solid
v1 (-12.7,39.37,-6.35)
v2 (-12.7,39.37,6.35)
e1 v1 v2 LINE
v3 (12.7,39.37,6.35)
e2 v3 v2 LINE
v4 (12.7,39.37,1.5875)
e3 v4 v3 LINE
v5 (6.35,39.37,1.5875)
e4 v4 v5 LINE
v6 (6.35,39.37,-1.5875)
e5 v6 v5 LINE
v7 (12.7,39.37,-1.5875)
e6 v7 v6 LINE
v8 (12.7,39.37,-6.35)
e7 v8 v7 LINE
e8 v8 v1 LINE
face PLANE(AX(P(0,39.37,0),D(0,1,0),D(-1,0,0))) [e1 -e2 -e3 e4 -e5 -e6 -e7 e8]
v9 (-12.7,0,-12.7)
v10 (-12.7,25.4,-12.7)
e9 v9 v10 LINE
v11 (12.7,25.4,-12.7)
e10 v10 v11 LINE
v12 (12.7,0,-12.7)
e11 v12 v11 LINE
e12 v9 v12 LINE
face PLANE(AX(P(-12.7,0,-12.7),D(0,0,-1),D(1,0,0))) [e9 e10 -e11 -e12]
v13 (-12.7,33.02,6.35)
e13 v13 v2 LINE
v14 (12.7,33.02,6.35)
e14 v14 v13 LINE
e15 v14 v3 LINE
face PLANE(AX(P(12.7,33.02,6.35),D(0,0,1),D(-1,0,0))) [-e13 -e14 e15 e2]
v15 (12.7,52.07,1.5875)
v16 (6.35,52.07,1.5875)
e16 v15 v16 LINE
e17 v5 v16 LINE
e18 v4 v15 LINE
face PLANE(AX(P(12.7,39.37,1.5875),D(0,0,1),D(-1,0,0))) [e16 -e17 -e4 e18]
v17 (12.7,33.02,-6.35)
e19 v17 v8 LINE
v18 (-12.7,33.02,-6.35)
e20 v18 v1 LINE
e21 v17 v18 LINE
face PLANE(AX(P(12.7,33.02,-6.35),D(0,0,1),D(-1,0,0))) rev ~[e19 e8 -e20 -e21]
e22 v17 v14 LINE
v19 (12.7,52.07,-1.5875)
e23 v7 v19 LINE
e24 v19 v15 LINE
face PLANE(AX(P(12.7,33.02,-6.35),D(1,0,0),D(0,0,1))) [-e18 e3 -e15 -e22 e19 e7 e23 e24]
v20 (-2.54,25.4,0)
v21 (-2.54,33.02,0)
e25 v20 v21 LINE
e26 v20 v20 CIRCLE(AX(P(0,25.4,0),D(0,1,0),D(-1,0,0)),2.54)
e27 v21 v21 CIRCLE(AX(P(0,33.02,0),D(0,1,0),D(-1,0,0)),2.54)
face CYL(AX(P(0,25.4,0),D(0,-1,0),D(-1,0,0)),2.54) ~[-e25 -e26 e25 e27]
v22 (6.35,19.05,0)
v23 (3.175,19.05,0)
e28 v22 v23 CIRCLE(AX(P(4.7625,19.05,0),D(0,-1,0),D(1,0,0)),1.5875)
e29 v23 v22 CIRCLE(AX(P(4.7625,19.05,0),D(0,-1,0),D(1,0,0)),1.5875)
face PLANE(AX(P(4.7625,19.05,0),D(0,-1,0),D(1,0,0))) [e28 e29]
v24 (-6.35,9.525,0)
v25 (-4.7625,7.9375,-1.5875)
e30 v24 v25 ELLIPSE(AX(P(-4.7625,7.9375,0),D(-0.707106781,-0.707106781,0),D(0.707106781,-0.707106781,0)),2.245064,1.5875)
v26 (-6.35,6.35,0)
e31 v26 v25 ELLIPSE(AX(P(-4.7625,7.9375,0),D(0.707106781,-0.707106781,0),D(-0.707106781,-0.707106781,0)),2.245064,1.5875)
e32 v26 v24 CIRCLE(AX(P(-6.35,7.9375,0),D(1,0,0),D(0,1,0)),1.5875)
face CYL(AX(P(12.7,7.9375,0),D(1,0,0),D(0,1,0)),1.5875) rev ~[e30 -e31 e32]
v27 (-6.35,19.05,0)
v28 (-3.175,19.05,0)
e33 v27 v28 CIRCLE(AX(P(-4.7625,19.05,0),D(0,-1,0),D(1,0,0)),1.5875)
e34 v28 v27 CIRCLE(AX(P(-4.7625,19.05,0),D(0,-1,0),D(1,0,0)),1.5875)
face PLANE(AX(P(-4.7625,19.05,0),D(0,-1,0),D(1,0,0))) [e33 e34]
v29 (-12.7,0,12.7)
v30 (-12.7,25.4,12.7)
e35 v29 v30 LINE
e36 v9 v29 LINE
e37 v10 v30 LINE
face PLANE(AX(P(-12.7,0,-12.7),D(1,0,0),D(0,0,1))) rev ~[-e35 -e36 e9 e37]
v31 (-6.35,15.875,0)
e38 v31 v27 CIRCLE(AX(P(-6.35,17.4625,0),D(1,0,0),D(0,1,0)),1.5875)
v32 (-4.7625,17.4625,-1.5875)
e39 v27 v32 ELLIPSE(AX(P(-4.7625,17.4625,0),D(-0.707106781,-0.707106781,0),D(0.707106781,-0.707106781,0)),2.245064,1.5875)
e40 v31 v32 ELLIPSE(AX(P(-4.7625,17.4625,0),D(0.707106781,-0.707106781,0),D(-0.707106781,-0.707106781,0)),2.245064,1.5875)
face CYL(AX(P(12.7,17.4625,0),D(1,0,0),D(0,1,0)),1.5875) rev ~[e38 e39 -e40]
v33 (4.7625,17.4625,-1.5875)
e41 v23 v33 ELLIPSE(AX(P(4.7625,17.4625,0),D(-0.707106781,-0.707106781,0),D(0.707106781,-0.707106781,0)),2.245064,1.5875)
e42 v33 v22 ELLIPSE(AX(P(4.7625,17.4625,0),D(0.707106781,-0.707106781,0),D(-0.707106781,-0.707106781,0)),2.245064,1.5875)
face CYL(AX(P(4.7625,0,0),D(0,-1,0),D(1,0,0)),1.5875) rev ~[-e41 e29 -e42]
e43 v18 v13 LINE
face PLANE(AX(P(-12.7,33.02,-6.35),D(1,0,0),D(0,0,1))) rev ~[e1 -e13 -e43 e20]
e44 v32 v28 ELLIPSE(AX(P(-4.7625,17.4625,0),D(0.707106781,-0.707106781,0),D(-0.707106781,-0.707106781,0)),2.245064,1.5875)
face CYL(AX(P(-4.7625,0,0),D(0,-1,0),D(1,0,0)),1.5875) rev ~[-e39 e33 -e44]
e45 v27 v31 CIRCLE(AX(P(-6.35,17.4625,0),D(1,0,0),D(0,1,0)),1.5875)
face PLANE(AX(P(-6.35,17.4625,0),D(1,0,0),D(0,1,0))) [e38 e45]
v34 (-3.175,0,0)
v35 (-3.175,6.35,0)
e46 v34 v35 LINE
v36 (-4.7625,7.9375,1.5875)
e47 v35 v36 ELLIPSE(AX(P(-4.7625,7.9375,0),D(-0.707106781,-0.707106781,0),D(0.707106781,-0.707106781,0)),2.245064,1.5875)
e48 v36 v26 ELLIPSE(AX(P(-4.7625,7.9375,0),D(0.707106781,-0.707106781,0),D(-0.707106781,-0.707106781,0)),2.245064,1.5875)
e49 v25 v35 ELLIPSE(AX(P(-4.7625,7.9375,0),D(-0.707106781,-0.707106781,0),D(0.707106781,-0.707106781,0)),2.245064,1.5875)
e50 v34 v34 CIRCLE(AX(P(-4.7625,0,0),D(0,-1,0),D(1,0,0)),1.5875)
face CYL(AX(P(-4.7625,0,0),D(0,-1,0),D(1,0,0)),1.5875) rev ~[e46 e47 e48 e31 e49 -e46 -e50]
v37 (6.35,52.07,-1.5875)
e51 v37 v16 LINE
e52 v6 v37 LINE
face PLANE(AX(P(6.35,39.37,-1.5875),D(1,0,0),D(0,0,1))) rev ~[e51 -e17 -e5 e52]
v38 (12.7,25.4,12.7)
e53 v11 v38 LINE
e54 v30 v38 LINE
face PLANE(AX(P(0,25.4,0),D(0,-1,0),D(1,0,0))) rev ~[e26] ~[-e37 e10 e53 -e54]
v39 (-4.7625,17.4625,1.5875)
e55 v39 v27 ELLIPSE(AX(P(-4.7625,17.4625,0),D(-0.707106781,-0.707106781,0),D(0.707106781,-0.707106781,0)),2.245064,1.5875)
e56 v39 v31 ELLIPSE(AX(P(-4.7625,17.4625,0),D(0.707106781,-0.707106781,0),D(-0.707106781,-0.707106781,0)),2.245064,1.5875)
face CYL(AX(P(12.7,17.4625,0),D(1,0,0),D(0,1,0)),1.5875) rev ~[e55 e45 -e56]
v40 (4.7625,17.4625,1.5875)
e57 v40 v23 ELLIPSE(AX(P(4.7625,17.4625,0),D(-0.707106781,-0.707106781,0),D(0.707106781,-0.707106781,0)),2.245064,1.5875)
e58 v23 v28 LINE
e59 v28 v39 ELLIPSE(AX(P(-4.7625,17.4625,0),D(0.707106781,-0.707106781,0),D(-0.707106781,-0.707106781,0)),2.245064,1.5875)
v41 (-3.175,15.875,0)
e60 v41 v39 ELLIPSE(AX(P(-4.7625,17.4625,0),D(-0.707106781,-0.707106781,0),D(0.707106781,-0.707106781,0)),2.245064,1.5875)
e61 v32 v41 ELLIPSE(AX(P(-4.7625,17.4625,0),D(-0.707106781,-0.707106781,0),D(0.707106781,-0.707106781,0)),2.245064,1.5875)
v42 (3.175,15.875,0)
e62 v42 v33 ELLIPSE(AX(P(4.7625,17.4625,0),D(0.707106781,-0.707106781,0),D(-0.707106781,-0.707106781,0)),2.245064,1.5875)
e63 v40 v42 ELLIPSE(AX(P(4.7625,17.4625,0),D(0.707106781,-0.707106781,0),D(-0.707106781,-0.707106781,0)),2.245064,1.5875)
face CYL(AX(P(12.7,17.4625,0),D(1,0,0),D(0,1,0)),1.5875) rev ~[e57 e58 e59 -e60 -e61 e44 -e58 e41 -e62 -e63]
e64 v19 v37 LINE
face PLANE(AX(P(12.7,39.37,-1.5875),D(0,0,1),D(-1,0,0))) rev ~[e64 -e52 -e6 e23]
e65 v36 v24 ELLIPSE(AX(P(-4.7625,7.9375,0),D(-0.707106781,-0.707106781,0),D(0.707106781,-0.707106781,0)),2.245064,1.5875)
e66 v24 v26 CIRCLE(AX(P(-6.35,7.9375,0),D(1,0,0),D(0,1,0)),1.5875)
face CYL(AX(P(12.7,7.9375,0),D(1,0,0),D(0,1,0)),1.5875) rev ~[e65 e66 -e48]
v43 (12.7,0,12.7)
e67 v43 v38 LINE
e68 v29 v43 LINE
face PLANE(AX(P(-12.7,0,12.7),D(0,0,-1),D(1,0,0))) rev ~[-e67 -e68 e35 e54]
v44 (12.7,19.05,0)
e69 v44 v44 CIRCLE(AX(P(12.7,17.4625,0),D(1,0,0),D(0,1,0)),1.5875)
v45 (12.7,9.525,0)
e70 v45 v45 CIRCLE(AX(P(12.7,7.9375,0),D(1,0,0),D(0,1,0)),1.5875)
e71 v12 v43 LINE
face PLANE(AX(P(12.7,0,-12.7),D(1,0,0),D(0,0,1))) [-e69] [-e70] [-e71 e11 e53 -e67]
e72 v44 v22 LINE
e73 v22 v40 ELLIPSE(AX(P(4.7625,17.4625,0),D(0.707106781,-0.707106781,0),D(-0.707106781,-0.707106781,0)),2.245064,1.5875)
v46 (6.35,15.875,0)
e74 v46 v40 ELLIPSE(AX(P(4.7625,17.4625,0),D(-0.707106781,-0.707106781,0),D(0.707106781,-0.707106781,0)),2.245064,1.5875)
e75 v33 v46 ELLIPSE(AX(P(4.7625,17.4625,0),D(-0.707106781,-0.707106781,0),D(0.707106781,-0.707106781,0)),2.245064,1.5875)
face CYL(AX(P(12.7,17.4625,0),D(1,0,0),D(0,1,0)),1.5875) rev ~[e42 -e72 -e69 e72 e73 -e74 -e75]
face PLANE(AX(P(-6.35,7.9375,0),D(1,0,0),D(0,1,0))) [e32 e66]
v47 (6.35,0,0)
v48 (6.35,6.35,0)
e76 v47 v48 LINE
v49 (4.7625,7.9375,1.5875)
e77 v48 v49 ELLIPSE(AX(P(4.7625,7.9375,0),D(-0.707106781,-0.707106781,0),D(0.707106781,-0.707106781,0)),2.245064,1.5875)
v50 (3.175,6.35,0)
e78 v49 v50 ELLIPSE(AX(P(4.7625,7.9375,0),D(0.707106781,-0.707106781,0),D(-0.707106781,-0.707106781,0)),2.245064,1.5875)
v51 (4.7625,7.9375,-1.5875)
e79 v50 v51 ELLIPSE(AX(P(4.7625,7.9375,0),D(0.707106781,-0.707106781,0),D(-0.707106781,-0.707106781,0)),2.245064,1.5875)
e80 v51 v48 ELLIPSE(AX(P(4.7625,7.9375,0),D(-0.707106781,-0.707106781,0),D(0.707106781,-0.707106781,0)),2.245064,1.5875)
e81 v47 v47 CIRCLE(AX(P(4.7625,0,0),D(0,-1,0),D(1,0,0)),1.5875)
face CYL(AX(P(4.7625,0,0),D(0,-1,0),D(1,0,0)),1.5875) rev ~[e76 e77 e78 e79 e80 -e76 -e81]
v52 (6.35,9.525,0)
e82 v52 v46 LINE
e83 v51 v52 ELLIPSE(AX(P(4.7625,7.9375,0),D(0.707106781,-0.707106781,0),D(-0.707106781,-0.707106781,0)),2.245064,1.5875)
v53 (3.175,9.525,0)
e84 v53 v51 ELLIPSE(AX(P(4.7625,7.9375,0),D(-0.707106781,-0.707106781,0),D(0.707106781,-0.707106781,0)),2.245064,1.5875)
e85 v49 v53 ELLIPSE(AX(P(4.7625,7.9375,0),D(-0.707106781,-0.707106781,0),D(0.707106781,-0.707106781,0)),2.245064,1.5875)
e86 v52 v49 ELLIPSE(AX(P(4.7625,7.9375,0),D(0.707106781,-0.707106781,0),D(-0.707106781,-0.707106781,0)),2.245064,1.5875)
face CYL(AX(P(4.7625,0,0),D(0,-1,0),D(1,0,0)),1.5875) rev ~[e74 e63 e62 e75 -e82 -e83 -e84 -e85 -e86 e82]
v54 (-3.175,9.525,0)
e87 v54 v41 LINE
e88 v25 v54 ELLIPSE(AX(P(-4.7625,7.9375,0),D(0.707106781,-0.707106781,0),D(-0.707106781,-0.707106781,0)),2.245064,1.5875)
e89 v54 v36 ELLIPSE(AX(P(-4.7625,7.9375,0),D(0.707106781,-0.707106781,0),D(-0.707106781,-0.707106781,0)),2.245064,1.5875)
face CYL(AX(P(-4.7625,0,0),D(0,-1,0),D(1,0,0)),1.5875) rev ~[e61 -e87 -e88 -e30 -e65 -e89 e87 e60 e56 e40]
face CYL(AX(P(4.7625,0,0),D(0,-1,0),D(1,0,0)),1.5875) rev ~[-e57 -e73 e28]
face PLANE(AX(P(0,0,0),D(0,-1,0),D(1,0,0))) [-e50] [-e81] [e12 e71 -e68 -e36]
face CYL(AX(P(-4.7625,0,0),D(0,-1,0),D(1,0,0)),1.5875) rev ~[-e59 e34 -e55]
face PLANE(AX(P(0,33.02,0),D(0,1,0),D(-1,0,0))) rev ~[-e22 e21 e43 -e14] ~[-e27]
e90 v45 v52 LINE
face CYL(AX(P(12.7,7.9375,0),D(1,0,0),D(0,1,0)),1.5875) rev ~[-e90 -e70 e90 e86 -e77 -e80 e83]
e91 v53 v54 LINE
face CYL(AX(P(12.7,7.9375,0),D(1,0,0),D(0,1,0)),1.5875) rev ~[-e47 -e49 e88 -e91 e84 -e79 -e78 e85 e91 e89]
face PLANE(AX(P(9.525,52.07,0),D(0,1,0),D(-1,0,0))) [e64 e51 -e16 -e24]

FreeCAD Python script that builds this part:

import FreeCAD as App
import Part
import Sketcher

V = App.Vector
Q = App.Units.Quantity


def add_polygon(sketch, points):
    """Adds a closed chain of lines whose ends are joined by coincident constraints."""
    first, n = sketch.GeometryCount, len(points)
    for a, b in zip(points, points[1:] + points[:1]):
        sketch.addGeometry(Part.LineSegment(App.Vector(*a, 0), App.Vector(*b, 0)), False)
    for i in range(n):
        sketch.addConstraint(Sketcher.Constraint("Coincident", first + i, 2, first + (i + 1) % n, 1))

doc = App.newDocument("Part")
body = doc.addObject("PartDesign::Body", "Body")

sketch1 = body.newObject("Sketcher::SketchObject", "Sketch")
sketch1.AttachmentSupport = (doc.getObject("XZ_Plane"), [""])
sketch1.MapMode = "FlatFace"
add_polygon(sketch1, [(-13, 13), (-13, -13), (13, -13), (13, 13)])
sketch1.addConstraint([
    Sketcher.Constraint("Vertical", 0),
    Sketcher.Constraint("Horizontal", 1),
    Sketcher.Constraint("Vertical", 2),
    Sketcher.Constraint("Horizontal", 3),
    Sketcher.Constraint("Symmetric", 0, 2, 2, 2, -1, 1),
    Sketcher.Constraint("Equal", 3, 0),
    Sketcher.Constraint("DistanceX", 1, 1, 1, 2, Q("1 in")),
])
pad1 = body.newObject("PartDesign::Pad", "Pad")
pad1.Profile = sketch1
pad1.Length = Q("1 in")
pad1.Reversed = True

sketch2 = body.newObject("Sketcher::SketchObject", "Sketch001")
sketch2.AttachmentSupport = (doc.getObject("XZ_Plane"), [""])
sketch2.MapMode = "FlatFace"
sketch2.AttachmentOffset = App.Placement(V(0, 0, -1 * 25.4), App.Rotation())
sketch2.addGeometry(Part.Circle(V(0, 0, 0), V(0, 0, 1), 2.5), False)
sketch2.addConstraint([
    Sketcher.Constraint("Coincident", 0, 3, -1, 1),
    Sketcher.Constraint("Diameter", 0, Q("0.2 in")),
])
pad2 = body.newObject("PartDesign::Pad", "Pad001")
pad2.Profile = sketch2
pad2.Length = Q("0.3 in")
pad2.Reversed = True

sketch3 = body.newObject("Sketcher::SketchObject", "Sketch002")
sketch3.AttachmentSupport = (doc.getObject("XZ_Plane"), [""])
sketch3.MapMode = "FlatFace"
sketch3.AttachmentOffset = App.Placement(V(0, 0, -1.3 * 25.4), App.Rotation())
add_polygon(sketch3, [(13, 6), (13, -6), (-13, -6), (-13, 6)])
sketch3.addConstraint([
    Sketcher.Constraint("Vertical", 0),
    Sketcher.Constraint("Horizontal", 1),
    Sketcher.Constraint("Vertical", 2),
    Sketcher.Constraint("Horizontal", 3),
    Sketcher.Constraint("Symmetric", 0, 2, 2, 2, -1, 1),
    Sketcher.Constraint("DistanceX", 1, 2, 1, 1, Q("1 in")),
    Sketcher.Constraint("DistanceY", 0, 2, 0, 1, Q("0.5 in")),
])
pad3 = body.newObject("PartDesign::Pad", "Pad002")
pad3.Profile = sketch3
pad3.Length = Q("0.25 in")
pad3.Reversed = True

sketch4 = body.newObject("Sketcher::SketchObject", "Sketch003")
sketch4.AttachmentSupport = (doc.getObject("XZ_Plane"), [""])
sketch4.MapMode = "FlatFace"
sketch4.AttachmentOffset = App.Placement(V(0, 0, -1.55 * 25.4), App.Rotation())
add_polygon(sketch4, [(12.7, 1.6), (12.7, -1.6), (6.3, -1.6), (6.3, 1.6)])
sketch4.addConstraint([
    Sketcher.Constraint("Vertical", 0),
    Sketcher.Constraint("Horizontal", 1),
    Sketcher.Constraint("Vertical", 2),
    Sketcher.Constraint("Horizontal", 3),
    Sketcher.Constraint("DistanceX", 1, 2, 1, 1, Q("0.25 in")),
    Sketcher.Constraint("DistanceX", -1, 1, 0, 2, Q("0.5 in")),
    Sketcher.Constraint("DistanceY", 0, 2, 0, 1, Q("0.125 in")),
    Sketcher.Constraint("DistanceY", 0, 2, -1, 1, Q("0.0625 in")),
])
pad4 = body.newObject("PartDesign::Pad", "Pad003")
pad4.Profile = sketch4
pad4.Length = Q("0.5 in")
pad4.Reversed = True

sketch5 = body.newObject("Sketcher::SketchObject", "Sketch004")
sketch5.AttachmentSupport = (doc.getObject("XZ_Plane"), [""])
sketch5.MapMode = "FlatFace"
sketch5.addGeometry([
    Part.Circle(V(-4.8, 0, 0), V(0, 0, 1), 1.6),
    Part.Circle(V(4.8, 0, 0), V(0, 0, 1), 1.6),
], False)
sketch5.addConstraint([
    Sketcher.Constraint("Equal", 0, 1),
    Sketcher.Constraint("Symmetric", 0, 3, 1, 3, -1, 1),
    Sketcher.Constraint("PointOnObject", 0, 3, -1),
    Sketcher.Constraint("Diameter", 0, Q("0.125 in")),
    Sketcher.Constraint("DistanceX", 0, 3, -1, 1, Q("0.1875 in")),
])
pocket1 = body.newObject("PartDesign::Pocket", "Pocket")
pocket1.Profile = sketch5
pocket1.Length = Q("0.75 in")

sketch6 = body.newObject("Sketcher::SketchObject", "Sketch005")
sketch6.AttachmentSupport = (doc.getObject("YZ_Plane"), [""])
sketch6.MapMode = "FlatFace"
sketch6.AttachmentOffset = App.Placement(V(0, 0, 0.5 * 25.4), App.Rotation())
sketch6.addGeometry([
    Part.Circle(V(7.9, 0, 0), V(0, 0, 1), 1.6),
    Part.Circle(V(17.5, 0, 0), V(0, 0, 1), 1.6),
], False)
sketch6.addConstraint([
    Sketcher.Constraint("Equal", 0, 1),
    Sketcher.Constraint("PointOnObject", 0, 3, -1),
    Sketcher.Constraint("PointOnObject", 1, 3, -1),
    Sketcher.Constraint("Diameter", 0, Q("0.125 in")),
    Sketcher.Constraint("DistanceX", -1, 1, 0, 3, Q("0.3125 in")),
    Sketcher.Constraint("DistanceX", -1, 1, 1, 3, Q("0.6875 in")),
])
pocket2 = body.newObject("PartDesign::Pocket", "Pocket001")
pocket2.Profile = sketch6
pocket2.Length = Q("0.75 in")

doc.recompute()
